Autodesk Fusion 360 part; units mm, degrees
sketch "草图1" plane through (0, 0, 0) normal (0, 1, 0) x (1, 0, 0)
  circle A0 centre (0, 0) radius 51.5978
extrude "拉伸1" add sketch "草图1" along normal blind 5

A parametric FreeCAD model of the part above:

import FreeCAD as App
import Part
import Sketcher

V = App.Vector

doc = App.newDocument("Part")
body = doc.addObject("PartDesign::Body", "Body")

# Sketch on XZ plane
sketch1 = body.newObject("Sketcher::SketchObject", "Sketch")
sketch1.AttachmentSupport = (doc.getObject("XZ_Plane"), [""])
sketch1.MapMode = "FlatFace"
sketch1.addGeometry(Part.Circle(V(0, 0, 0), V(0, 0, 1), 52), False)
sketch1.addConstraint(Sketcher.Constraint("Coincident", 0, 3, -1, 1))
sketch1.addConstraint(Sketcher.Constraint("Diameter", 0, 103.1956))
pad1 = body.newObject("PartDesign::Pad", "Pad")
pad1.Profile = sketch1
pad1.Length = 5
pad1.Reversed = True

doc.recompute()
